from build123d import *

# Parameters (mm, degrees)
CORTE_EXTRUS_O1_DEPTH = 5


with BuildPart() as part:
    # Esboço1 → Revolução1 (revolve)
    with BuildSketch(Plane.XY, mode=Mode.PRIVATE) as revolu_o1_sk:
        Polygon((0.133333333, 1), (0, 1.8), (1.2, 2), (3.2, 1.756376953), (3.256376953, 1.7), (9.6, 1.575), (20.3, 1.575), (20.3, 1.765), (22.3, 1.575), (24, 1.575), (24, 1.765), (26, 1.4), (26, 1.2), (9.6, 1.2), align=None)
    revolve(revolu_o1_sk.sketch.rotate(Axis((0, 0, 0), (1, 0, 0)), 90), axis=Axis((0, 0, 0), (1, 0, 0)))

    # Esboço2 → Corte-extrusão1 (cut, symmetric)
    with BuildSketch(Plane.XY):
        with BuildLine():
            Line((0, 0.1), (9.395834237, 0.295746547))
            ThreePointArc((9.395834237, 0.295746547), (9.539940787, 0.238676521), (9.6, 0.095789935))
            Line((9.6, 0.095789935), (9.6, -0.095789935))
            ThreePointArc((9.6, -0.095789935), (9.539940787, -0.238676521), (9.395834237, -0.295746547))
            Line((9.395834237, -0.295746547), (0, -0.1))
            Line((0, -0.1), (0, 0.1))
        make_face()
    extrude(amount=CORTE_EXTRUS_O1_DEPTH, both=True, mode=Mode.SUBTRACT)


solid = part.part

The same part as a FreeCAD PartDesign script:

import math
import FreeCAD as App
import Part
import Sketcher

V = App.Vector
Q = App.Units.Quantity

doc = App.newDocument("Part")
body = doc.addObject("PartDesign::Body", "Body")

# Sketch on XY plane
sketch1 = body.newObject("Sketcher::SketchObject", "Sketch")
sketch1.AttachmentSupport = (doc.getObject("XY_Plane"), [""])
sketch1.MapMode = "FlatFace"
sketch1.addGeometry([
    Part.LineSegment(V(0, 1.8, 0), V(0.133333, 1, 0)),  # 0
    Part.LineSegment(V(0.133333, 1, 0), V(9.6, 1.2, 0)),  # 1
    Part.LineSegment(V(9.6, 1.2, 0), V(26, 1.2, 0)),  # 2
    Part.LineSegment(V(26, 1.2, 0), V(26, 1.4, 0)),  # 3
    Part.LineSegment(V(26, 1.4, 0), V(24, 1.765, 0)),  # 4
    Part.LineSegment(V(24, 1.765, 0), V(24, 1.575, 0)),  # 5
    Part.LineSegment(V(24, 1.575, 0), V(22.3, 1.575, 0)),  # 6
    Part.LineSegment(V(22.3, 1.575, 0), V(20.3, 1.765, 0)),  # 7
    Part.LineSegment(V(20.3, 1.765, 0), V(20.3, 1.575, 0)),  # 8
    Part.LineSegment(V(20.3, 1.575, 0), V(9.6, 1.575, 0)),  # 9
    Part.LineSegment(V(9.6, 1.575, 0), V(3.256377, 1.7, 0)),  # 10
    Part.LineSegment(V(3.256377, 1.7, 0), V(3.2, 1.756377, 0)),  # 11
    Part.LineSegment(V(3.2, 1.756377, 0), V(1.2, 2, 0)),  # 12
    Part.LineSegment(V(1.2, 2, 0), V(0, 1.8, 0)),  # 13
], False)
sketch1.addConstraint([
    Sketcher.Constraint("Coincident", 0, 2, 1, 1),
    Sketcher.Constraint("Coincident", 1, 2, 2, 1),
    Sketcher.Constraint("Coincident", 2, 2, 3, 1),
    Sketcher.Constraint("Coincident", 3, 2, 4, 1),
    Sketcher.Constraint("Coincident", 4, 2, 5, 1),
    Sketcher.Constraint("Coincident", 5, 2, 6, 1),
    Sketcher.Constraint("Coincident", 6, 2, 7, 1),
    Sketcher.Constraint("Coincident", 7, 2, 8, 1),
    Sketcher.Constraint("Coincident", 8, 2, 9, 1),
    Sketcher.Constraint("Coincident", 9, 2, 10, 1),
    Sketcher.Constraint("Coincident", 10, 2, 11, 1),
    Sketcher.Constraint("Coincident", 11, 2, 12, 1),
    Sketcher.Constraint("Coincident", 12, 2, 13, 1),
    Sketcher.Constraint("Coincident", 13, 2, 0, 1),
    Sketcher.Constraint("Horizontal", 2),
    Sketcher.Constraint("Vertical", 3),
    Sketcher.Constraint("Vertical", 5),
    Sketcher.Constraint("Horizontal", 6),
    Sketcher.Constraint("Vertical", 8),
    Sketcher.Constraint("Horizontal", 9),
    Sketcher.Constraint("PointOnObject", 13, 2, -2),
    Sketcher.Constraint("Perpendicular", 0, 13),
    Sketcher.Constraint("Horizontal", 4, 2, 7, 2),
    Sketcher.Constraint("Horizontal", 6, 2, 8, 2),
    Sketcher.Constraint("Vertical", 1, 2, 9, 2),
    Sketcher.Constraint("Angle", 11, Q("135 deg")),
    Sketcher.Constraint("DistanceX", 2, 1, 2, 2, 16.4),
    Sketcher.Constraint("DistanceX", 6, 2, 6, 1, 1.7),
    Sketcher.Constraint("DistanceX", 9, 2, 9, 1, 10.7),
    Sketcher.Constraint("DistanceY", 3, 1, 3, 2, 0.2),
    Sketcher.Constraint("DistanceY", -1, 1, 0, 2, 1.0),
    Sketcher.Constraint("DistanceX", -1, 1, 2, 2, 26.0),
    Sketcher.Constraint("DistanceX", -1, 1, 4, 2, 24.0),
    Sketcher.Constraint("DistanceY", -1, 1, 12, 2, 2.0),
    Sketcher.Constraint("DistanceX", 12, 2, 11, 2, 2.0),
    Sketcher.Constraint("DistanceY", 5, 2, 5, 1, 0.19),
    Sketcher.Constraint("DistanceY", -1, 1, 1, 2, 1.2),
    Sketcher.Constraint("DistanceY", -1, 1, 10, 2, 1.7),
    Sketcher.Constraint("DistanceX", -1, 1, 11, 2, 3.2),
    Sketcher.Constraint("DistanceY", -1, 1, 13, 2, 1.8),
    Sketcher.Constraint("DistanceY", -1, 1, 4, 2, 1.765),
    Sketcher.Constraint("Distance", 11, 0.079729),
])
revolution = body.newObject("PartDesign::Revolution", "Revolution")
revolution.Profile = sketch1
revolution.ReferenceAxis = (sketch1, ["H_Axis"])
revolution.Angle = 360

# Sketch on XY plane
sketch2 = body.newObject("Sketcher::SketchObject", "Sketch001")
sketch2.AttachmentSupport = (doc.getObject("XY_Plane"), [""])
sketch2.MapMode = "FlatFace"
sketch2.addGeometry([
    Part.LineSegment(V(9.395834, 0.295747, 0), V(0, 0.1, 0)),  # 0
    Part.LineSegment(V(0, 0.1, 0), V(0, -0.1, 0)),  # 1
    Part.LineSegment(V(0, -0.1, 0), V(9.395834, -0.295747, 0)),  # 2
    Part.ArcOfCircle(Part.Circle(V(9.4, -0.09579, 0), V(0, 0, 1), 0.2), math.radians(-91.19349), math.radians(0)),  # 3
    Part.LineSegment(V(9.6, -0.09579, 0), V(9.6, 0.09579, 0)),  # 4
    Part.ArcOfCircle(Part.Circle(V(9.4, 0.09579, 0), V(0, 0, 1), 0.2), math.radians(0), math.radians(91.19349)),  # 5
], False)
sketch2.addConstraint([
    Sketcher.Constraint("Coincident", 0, 2, 1, 1),
    Sketcher.Constraint("Coincident", 1, 2, 2, 1),
    Sketcher.Constraint("Tangent", 2, 2, 3, 1),
    Sketcher.Constraint("Tangent", 3, 2, 4, 1),
    Sketcher.Constraint("Tangent", 4, 2, 5, 1),
    Sketcher.Constraint("Tangent", 5, 2, 0, 1),
    Sketcher.Constraint("Vertical", 1),
    Sketcher.Constraint("Vertical", 4),
    Sketcher.Constraint("Equal", 3, 5),
    Sketcher.Constraint("Symmetric", 0, 2, 1, 2, -1, 1),
    Sketcher.Constraint("Vertical", 2, 2, 5, 2),
    Sketcher.Constraint("Radius", 3, 0.2),
    Sketcher.Constraint("DistanceY", 1, 2, 1, 1, 0.2),
    Sketcher.Constraint("DistanceX", -1, 1, 3, 3, 9.4),
    Sketcher.Constraint("DistanceY", 4, 1, 4, 2, 0.19158),
])
pocket1 = body.newObject("PartDesign::Pocket", "Pocket")
pocket1.Profile = sketch2
pocket1.Length = 10
pocket1.Midplane = True

doc.recompute()
